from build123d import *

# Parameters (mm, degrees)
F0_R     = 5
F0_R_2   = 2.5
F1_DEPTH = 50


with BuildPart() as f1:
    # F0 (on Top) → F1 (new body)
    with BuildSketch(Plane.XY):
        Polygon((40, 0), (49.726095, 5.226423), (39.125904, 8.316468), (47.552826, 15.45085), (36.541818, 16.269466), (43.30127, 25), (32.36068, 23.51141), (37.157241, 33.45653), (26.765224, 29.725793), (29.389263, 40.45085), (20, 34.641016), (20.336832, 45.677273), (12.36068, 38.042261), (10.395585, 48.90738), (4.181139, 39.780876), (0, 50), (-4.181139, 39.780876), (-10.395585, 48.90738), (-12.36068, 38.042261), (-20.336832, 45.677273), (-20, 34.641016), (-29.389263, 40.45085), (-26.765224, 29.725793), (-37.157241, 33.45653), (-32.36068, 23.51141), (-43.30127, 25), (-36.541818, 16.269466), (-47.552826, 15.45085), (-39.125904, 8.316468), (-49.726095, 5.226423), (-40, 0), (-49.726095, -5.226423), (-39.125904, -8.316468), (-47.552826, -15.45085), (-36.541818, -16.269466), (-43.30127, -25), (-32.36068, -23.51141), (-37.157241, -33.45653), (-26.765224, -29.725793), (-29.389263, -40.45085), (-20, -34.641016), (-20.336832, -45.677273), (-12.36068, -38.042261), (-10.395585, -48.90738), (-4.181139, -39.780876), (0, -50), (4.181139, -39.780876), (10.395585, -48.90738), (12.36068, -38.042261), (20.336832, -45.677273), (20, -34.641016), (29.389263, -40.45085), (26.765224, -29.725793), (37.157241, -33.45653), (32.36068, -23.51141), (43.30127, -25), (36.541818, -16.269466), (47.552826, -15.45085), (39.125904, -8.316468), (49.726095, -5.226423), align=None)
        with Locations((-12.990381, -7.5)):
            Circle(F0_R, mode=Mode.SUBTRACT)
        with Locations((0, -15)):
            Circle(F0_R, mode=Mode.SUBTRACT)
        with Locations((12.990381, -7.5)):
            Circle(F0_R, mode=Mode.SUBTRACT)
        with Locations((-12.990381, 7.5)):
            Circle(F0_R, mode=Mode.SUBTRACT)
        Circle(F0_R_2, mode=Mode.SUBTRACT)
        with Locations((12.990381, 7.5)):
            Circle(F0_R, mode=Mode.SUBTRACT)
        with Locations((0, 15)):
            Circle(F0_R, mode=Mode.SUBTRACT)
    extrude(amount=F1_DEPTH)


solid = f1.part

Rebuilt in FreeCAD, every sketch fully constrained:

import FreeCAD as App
import Part
import Sketcher


def add_polygon(sketch, points):
    """Adds a closed chain of lines whose ends are joined by coincident constraints."""
    first, n = sketch.GeometryCount, len(points)
    for a, b in zip(points, points[1:] + points[:1]):
        sketch.addGeometry(Part.LineSegment(App.Vector(*a, 0), App.Vector(*b, 0)), False)
    for i in range(n):
        sketch.addConstraint(Sketcher.Constraint("Coincident", first + i, 2, first + (i + 1) % n, 1))

doc = App.newDocument("Part")
params = doc.addObject("Spreadsheet::Sheet", "Params")
for row, (alias, value) in enumerate([
    ("sketch1_diameter", "10 mm"),
    ("sketch1_diameter2", "5 mm"),
    ("pad1_length", "50 mm"),
], start=1):
    params.set(f"A{row}", alias)
    params.set(f"B{row}", "=" + value)
    params.setAlias(f"B{row}", alias)

body = doc.addObject("PartDesign::Body", "Body")

# Sketch on XY plane
sketch1 = body.newObject("Sketcher::SketchObject", "Sketch")
sketch1.AttachmentSupport = (doc.getObject("XY_Plane"), [""])
sketch1.MapMode = "FlatFace"
add_polygon(sketch1, [(40, 0), (49.7, 5.2), (39.1, 8.3), (47.6, 15.5), (36.5, 16.3), (43.3, 25), (32.4, 23.5), (37.2, 33.5), (26.8, 29.7), (29.4, 40.5), (20, 34.6), (20.3, 45.7), (12.4, 38), (10.4, 48.9), (4.2, 39.8), (0, 50), (-4.2, 39.8), (-10.4, 48.9), (-12.4, 38), (-20.3, 45.7), (-20, 34.6), (-29.4, 40.5), (-26.8, 29.7), (-37.2, 33.5), (-32.4, 23.5), (-43.3, 25), (-36.5, 16.3), (-47.6, 15.5), (-39.1, 8.3), (-49.7, 5.2), (-40, 0), (-49.7, -5.2), (-39.1, -8.3), (-47.6, -15.5), (-36.5, -16.3), (-43.3, -25), (-32.4, -23.5), (-37.2, -33.5), (-26.8, -29.7), (-29.4, -40.5), (-20, -34.6), (-20.3, -45.7), (-12.4, -38), (-10.4, -48.9), (-4.2, -39.8), (0, -50), (4.2, -39.8), (10.4, -48.9), (12.4, -38), (20.3, -45.7), (20, -34.6), (29.4, -40.5), (26.8, -29.7), (37.2, -33.5), (32.4, -23.5), (43.3, -25), (36.5, -16.3), (47.6, -15.5), (39.1, -8.3), (49.7, -5.2)])  # lines 0-59
sketch1.addGeometry(Part.Circle(App.Vector(-13, -7.5, 0), App.Vector(0, 0, 1), 5), False)  # 60
sketch1.addGeometry(Part.Circle(App.Vector(0, -15, 0), App.Vector(0, 0, 1), 5), False)  # 61
sketch1.addGeometry(Part.Circle(App.Vector(13, -7.5, 0), App.Vector(0, 0, 1), 5), False)  # 62
sketch1.addGeometry(Part.Circle(App.Vector(-13, 7.5, 0), App.Vector(0, 0, 1), 5), False)  # 63
sketch1.addGeometry(Part.Circle(App.Vector(0, 0, 0), App.Vector(0, 0, 1), 2.5), False)  # 64
sketch1.addGeometry(Part.Circle(App.Vector(13, 7.5, 0), App.Vector(0, 0, 1), 5), False)  # 65
sketch1.addGeometry(Part.Circle(App.Vector(0, 15, 0), App.Vector(0, 0, 1), 5), False)  # 66
sketch1.addConstraint(Sketcher.Constraint("Coincident", 64, 3, -1, 1))
sketch1.addConstraint(Sketcher.Constraint("Equal", 60, 61))
sketch1.addConstraint(Sketcher.Constraint("Equal", 61, 62))
sketch1.addConstraint(Sketcher.Constraint("Equal", 62, 63))
sketch1.addConstraint(Sketcher.Constraint("Equal", 63, 65))
sketch1.addConstraint(Sketcher.Constraint("Equal", 65, 66))
sketch1.addConstraint(Sketcher.Constraint("Symmetric", 62, 3, 63, 3, -1, 1))
sketch1.addConstraint(Sketcher.Constraint("Symmetric", 60, 3, 65, 3, -1, 1))
sketch1.addConstraint(Sketcher.Constraint("Symmetric", 61, 3, 66, 3, -1, 1))
sketch1.addConstraint(Sketcher.Constraint("Symmetric", 0, 2, 30, 2, -1, 1))
sketch1.addConstraint(Sketcher.Constraint("Symmetric", 1, 2, 31, 2, -1, 1))
sketch1.addConstraint(Sketcher.Constraint("Symmetric", 2, 2, 32, 2, -1, 1))
sketch1.addConstraint(Sketcher.Constraint("Symmetric", 3, 2, 33, 2, -1, 1))
sketch1.addConstraint(Sketcher.Constraint("Symmetric", 4, 2, 34, 2, -1, 1))
sketch1.addConstraint(Sketcher.Constraint("Symmetric", 5, 2, 35, 2, -1, 1))
sketch1.addConstraint(Sketcher.Constraint("Symmetric", 6, 2, 36, 2, -1, 1))
sketch1.addConstraint(Sketcher.Constraint("Symmetric", 7, 2, 37, 2, -1, 1))
sketch1.addConstraint(Sketcher.Constraint("Symmetric", 8, 2, 38, 2, -1, 1))
sketch1.addConstraint(Sketcher.Constraint("Symmetric", 9, 2, 39, 2, -1, 1))
sketch1.addConstraint(Sketcher.Constraint("Symmetric", 10, 2, 40, 2, -1, 1))
sketch1.addConstraint(Sketcher.Constraint("Symmetric", 11, 2, 41, 2, -1, 1))
sketch1.addConstraint(Sketcher.Constraint("Symmetric", 12, 2, 42, 2, -1, 1))
sketch1.addConstraint(Sketcher.Constraint("Symmetric", 13, 2, 43, 2, -1, 1))
sketch1.addConstraint(Sketcher.Constraint("Symmetric", 14, 2, 44, 2, -1, 1))
sketch1.addConstraint(Sketcher.Constraint("Symmetric", 15, 2, 45, 2, -1, 1))
sketch1.addConstraint(Sketcher.Constraint("Symmetric", 16, 2, 46, 2, -1, 1))
sketch1.addConstraint(Sketcher.Constraint("Symmetric", 17, 2, 47, 2, -1, 1))
sketch1.addConstraint(Sketcher.Constraint("Symmetric", 18, 2, 48, 2, -1, 1))
sketch1.addConstraint(Sketcher.Constraint("Symmetric", 19, 2, 49, 2, -1, 1))
sketch1.addConstraint(Sketcher.Constraint("Symmetric", 20, 2, 50, 2, -1, 1))
sketch1.addConstraint(Sketcher.Constraint("Symmetric", 21, 2, 51, 2, -1, 1))
sketch1.addConstraint(Sketcher.Constraint("Symmetric", 22, 2, 52, 2, -1, 1))
sketch1.addConstraint(Sketcher.Constraint("Symmetric", 23, 2, 53, 2, -1, 1))
sketch1.addConstraint(Sketcher.Constraint("Symmetric", 24, 2, 54, 2, -1, 1))
sketch1.addConstraint(Sketcher.Constraint("Symmetric", 25, 2, 55, 2, -1, 1))
sketch1.addConstraint(Sketcher.Constraint("Symmetric", 26, 2, 56, 2, -1, 1))
sketch1.addConstraint(Sketcher.Constraint("Symmetric", 27, 2, 57, 2, -1, 1))
sketch1.addConstraint(Sketcher.Constraint("Symmetric", 28, 2, 58, 2, -1, 1))
sketch1.addConstraint(Sketcher.Constraint("Symmetric", 29, 2, 59, 2, -1, 1))
sketch1.addConstraint(Sketcher.Constraint("Symmetric", 60, 3, 62, 3, -2))
sketch1.addConstraint(Sketcher.Constraint("Symmetric", 13, 2, 15, 2, -2))
sketch1.addConstraint(Sketcher.Constraint("Symmetric", 12, 2, 16, 2, -2))
sketch1.addConstraint(Sketcher.Constraint("Symmetric", 11, 2, 17, 2, -2))
sketch1.addConstraint(Sketcher.Constraint("Symmetric", 10, 2, 18, 2, -2))
sketch1.addConstraint(Sketcher.Constraint("Symmetric", 9, 2, 19, 2, -2))
sketch1.addConstraint(Sketcher.Constraint("Symmetric", 8, 2, 20, 2, -2))
sketch1.addConstraint(Sketcher.Constraint("Symmetric", 7, 2, 21, 2, -2))
sketch1.addConstraint(Sketcher.Constraint("Symmetric", 6, 2, 22, 2, -2))
sketch1.addConstraint(Sketcher.Constraint("Symmetric", 5, 2, 23, 2, -2))
sketch1.addConstraint(Sketcher.Constraint("Symmetric", 4, 2, 24, 2, -2))
sketch1.addConstraint(Sketcher.Constraint("Symmetric", 3, 2, 25, 2, -2))
sketch1.addConstraint(Sketcher.Constraint("Symmetric", 2, 2, 26, 2, -2))
sketch1.addConstraint(Sketcher.Constraint("Symmetric", 1, 2, 27, 2, -2))
sketch1.addConstraint(Sketcher.Constraint("Symmetric", 0, 2, 28, 2, -2))
sketch1.addConstraint(Sketcher.Constraint("PointOnObject", 61, 3, -2))
sketch1.addConstraint(Sketcher.Constraint("PointOnObject", 14, 2, -2))
sketch1.addConstraint(Sketcher.Constraint("PointOnObject", 29, 2, -1))
sketch1.addConstraint(Sketcher.Constraint("Equal", 0, 1))
sketch1.addConstraint(Sketcher.Constraint("Equal", 1, 2))
sketch1.addConstraint(Sketcher.Constraint("Equal", 2, 3))
sketch1.addConstraint(Sketcher.Constraint("Equal", 3, 4))
sketch1.addConstraint(Sketcher.Constraint("Equal", 4, 5))
sketch1.addConstraint(Sketcher.Constraint("Equal", 5, 6))
sketch1.addConstraint(Sketcher.Constraint("Equal", 6, 7))
sketch1.addConstraint(Sketcher.Constraint("Equal", 7, 8))
sketch1.addConstraint(Sketcher.Constraint("Equal", 8, 9))
sketch1.addConstraint(Sketcher.Constraint("Equal", 9, 10))
sketch1.addConstraint(Sketcher.Constraint("Equal", 10, 11))
sketch1.addConstraint(Sketcher.Constraint("Equal", 11, 12))
sketch1.addConstraint(Sketcher.Constraint("Equal", 12, 13))
sketch1.addConstraint(Sketcher.Constraint("Equal", 13, 14))
sketch1.addConstraint(Sketcher.Constraint("Diameter", 60, 10.0))
sketch1.addConstraint(Sketcher.Constraint("Diameter", 64, 5.0))
sketch1.addConstraint(Sketcher.Constraint("DistanceY", 61, 3, -1, 1, 15.0))
sketch1.addConstraint(Sketcher.Constraint("DistanceY", -1, 1, 4, 2, 25.0))
sketch1.addConstraint(Sketcher.Constraint("DistanceX", -1, 1, 9, 2, 20.0))
sketch1.addConstraint(Sketcher.Constraint("DistanceY", -1, 1, 14, 2, 50.0))
sketch1.addConstraint(Sketcher.Constraint("DistanceX", 29, 2, -1, 1, 40.0))
sketch1.addConstraint(Sketcher.Constraint("DistanceY", 60, 3, -1, 1, 7.5))
sketch1.addConstraint(Sketcher.Constraint("DistanceX", 60, 3, -1, 1, 12.990381))
sketch1.addConstraint(Sketcher.Constraint("DistanceY", -1, 1, 2, 2, 15.45085))
sketch1.addConstraint(Sketcher.Constraint("DistanceX", -1, 1, 4, 2, 43.30127))
sketch1.addConstraint(Sketcher.Constraint("DistanceX", -1, 1, 5, 2, 32.36068))
sketch1.addConstraint(Sketcher.Constraint("DistanceY", -1, 1, 5, 2, 23.51141))
sketch1.addConstraint(Sketcher.Constraint("DistanceX", -1, 1, 6, 2, 37.157241))
sketch1.addConstraint(Sketcher.Constraint("DistanceY", -1, 1, 8, 2, 40.45085))
sketch1.addConstraint(Sketcher.Constraint("DistanceX", -1, 1, 11, 2, 12.36068))
sketch1.addConstraint(Sketcher.Constraint("DistanceY", -1, 1, 11, 2, 38.042261))
sketch1.addConstraint(Sketcher.Constraint("DistanceY", -1, 1, 12, 2, 48.90738))
sketch1.addConstraint(Sketcher.Constraint("DistanceX", -1, 1, 0, 2, 49.726095))
sketch1.addConstraint(Sketcher.Constraint("DistanceX", -1, 1, 1, 2, 39.125904))
sketch1.addConstraint(Sketcher.Constraint("DistanceX", -1, 1, 7, 2, 26.765224))
sketch1.setExpression("Constraints[131]", "Params.sketch1_diameter")
sketch1.setExpression("Constraints[132]", "Params.sketch1_diameter2")
pad1 = body.newObject("PartDesign::Pad", "Pad")
pad1.Profile = sketch1
pad1.setExpression("Length", "Params.pad1_length")

doc.recompute()
